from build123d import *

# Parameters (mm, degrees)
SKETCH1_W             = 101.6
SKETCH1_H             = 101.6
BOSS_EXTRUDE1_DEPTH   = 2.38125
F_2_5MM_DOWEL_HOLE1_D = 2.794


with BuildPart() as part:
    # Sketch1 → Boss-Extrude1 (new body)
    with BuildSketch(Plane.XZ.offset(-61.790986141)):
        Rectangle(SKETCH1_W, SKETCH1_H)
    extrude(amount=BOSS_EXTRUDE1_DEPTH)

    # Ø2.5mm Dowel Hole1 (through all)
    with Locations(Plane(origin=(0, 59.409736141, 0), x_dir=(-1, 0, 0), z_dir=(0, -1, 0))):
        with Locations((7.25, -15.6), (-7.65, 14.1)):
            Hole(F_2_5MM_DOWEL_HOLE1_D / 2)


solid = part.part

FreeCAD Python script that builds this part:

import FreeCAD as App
import Part
import Sketcher

V = App.Vector
Q = App.Units.Quantity


def add_polygon(sketch, points):
    """Adds a closed chain of lines whose ends are joined by coincident constraints."""
    first, n = sketch.GeometryCount, len(points)
    for a, b in zip(points, points[1:] + points[:1]):
        sketch.addGeometry(Part.LineSegment(App.Vector(*a, 0), App.Vector(*b, 0)), False)
    for i in range(n):
        sketch.addConstraint(Sketcher.Constraint("Coincident", first + i, 2, first + (i + 1) % n, 1))

doc = App.newDocument("Part")
params = doc.addObject("Spreadsheet::Sheet", "Params")
for row, (alias, value) in enumerate([
    ("sketch1_width", "4 in"),
    ("pad1_length", "0.09375 in"),
    ("sketch2_diameter", "0.11 in"),
    ("hole_diameter", "0.11 in"),
], start=1):
    params.set(f"A{row}", alias)
    params.set(f"B{row}", "=" + value)
    params.setAlias(f"B{row}", alias)

body = doc.addObject("PartDesign::Body", "Body")

# Sketch on XZ plane
sketch1 = body.newObject("Sketcher::SketchObject", "Sketch")
sketch1.AttachmentSupport = (doc.getObject("XZ_Plane"), [""])
sketch1.MapMode = "FlatFace"
sketch1.AttachmentOffset = App.Placement(V(0, 0, -61.790986), App.Rotation())
add_polygon(sketch1, [(-51, 51), (-51, -51), (51, -51), (51, 51)])  # lines 0-3
sketch1.addConstraint(Sketcher.Constraint("Vertical", 0))
sketch1.addConstraint(Sketcher.Constraint("Horizontal", 1))
sketch1.addConstraint(Sketcher.Constraint("Vertical", 2))
sketch1.addConstraint(Sketcher.Constraint("Horizontal", 3))
sketch1.addConstraint(Sketcher.Constraint("Symmetric", 0, 2, 2, 2, -1, 1))
sketch1.addConstraint(Sketcher.Constraint("Equal", 3, 0))
sketch1.addConstraint(Sketcher.Constraint("DistanceX", 1, 1, 1, 2, Q("4 in")))
sketch1.setExpression("Constraints[10]", "Params.sketch1_width")
pad1 = body.newObject("PartDesign::Pad", "Pad")
pad1.Profile = sketch1
pad1.setExpression("Length", "Params.pad1_length")

# Sketch on XZ plane
sketch2 = body.newObject("Sketcher::SketchObject", "Sketch001")
sketch2.AttachmentSupport = (doc.getObject("XZ_Plane"), [""])
sketch2.MapMode = "FlatFace"
sketch2.AttachmentOffset = App.Placement(V(0, 0, -59.409736), App.Rotation())
sketch2.addGeometry(Part.Circle(V(-7.2, 15.6, 0), V(0, 0, 1), 1.4), False)
sketch2.addGeometry(Part.Circle(V(7.7, -14.1, 0), V(0, 0, 1), 1.4), False)
sketch2.addConstraint(Sketcher.Constraint("Equal", 0, 1))
sketch2.addConstraint(Sketcher.Constraint("Diameter", 0, Q("0.11 in")))
sketch2.addConstraint(Sketcher.Constraint("DistanceX", 0, 3, -1, 1, Q("7.25 mm")))
sketch2.addConstraint(Sketcher.Constraint("DistanceY", -1, 1, 0, 3, Q("15.6 mm")))
sketch2.addConstraint(Sketcher.Constraint("DistanceX", -1, 1, 1, 3, Q("7.65 mm")))
sketch2.addConstraint(Sketcher.Constraint("DistanceY", 1, 3, -1, 1, Q("14.1 mm")))
sketch2.setExpression("Constraints[1]", "Params.sketch2_diameter")
doc.recompute()
hole = body.newObject("PartDesign::Hole", "Hole")
hole.Profile = sketch2
hole.ThreadType = "None"
hole.setExpression("Diameter", "Params.hole_diameter")
hole.DepthType = "ThroughAll"

doc.recompute()
